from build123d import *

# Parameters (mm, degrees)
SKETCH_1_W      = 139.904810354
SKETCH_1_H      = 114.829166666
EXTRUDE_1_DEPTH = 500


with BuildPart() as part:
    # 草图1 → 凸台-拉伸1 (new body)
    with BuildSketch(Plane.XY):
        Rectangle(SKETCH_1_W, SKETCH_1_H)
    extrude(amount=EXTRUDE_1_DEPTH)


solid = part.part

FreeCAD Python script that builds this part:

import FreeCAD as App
import Part
import Sketcher

V = App.Vector
Q = App.Units.Quantity

doc = App.newDocument("Part")
params = doc.addObject("Spreadsheet::Sheet", "Params")
for row, (alias, value) in enumerate([
    ("pad1_length", "500 mm"),
], start=1):
    params.set(f"A{row}", alias)
    params.set(f"B{row}", "=" + value)
    params.setAlias(f"B{row}", alias)

body = doc.addObject("PartDesign::Body", "Body")

sketch1 = doc.addObject("Sketcher::SketchObject", "Sketch")
body.addObject(sketch1)
sketch1.AttachmentSupport = (doc.XY_Plane, [""])
sketch1.MapMode = "FlatFace"
sketch1.addGeometry([
    Part.LineSegment(V(-69.952405, 57.414583, 0), V(-69.952405, -57.414583, 0)),
    Part.LineSegment(V(-69.952405, -57.414583, 0), V(69.952405, -57.414583, 0)),
    Part.LineSegment(V(69.952405, -57.414583, 0), V(69.952405, 57.414583, 0)),
    Part.LineSegment(V(69.952405, 57.414583, 0), V(-69.952405, 57.414583, 0)),
], False)
sketch1.addConstraint([
    Sketcher.Constraint("Coincident", 0, 2, 1, 1),
    Sketcher.Constraint("Coincident", 1, 2, 2, 1),
    Sketcher.Constraint("Coincident", 2, 2, 3, 1),
    Sketcher.Constraint("Coincident", 3, 2, 0, 1),
    Sketcher.Constraint("Vertical", 0),
    Sketcher.Constraint("Horizontal", 1),
    Sketcher.Constraint("Vertical", 2),
    Sketcher.Constraint("Horizontal", 3),
    Sketcher.Constraint("Symmetric", 0, 2, 2, 2, -1, 1),
    Sketcher.Constraint("DistanceX", 1, 1, 1, 2, Q("139.90481 mm")),
    Sketcher.Constraint("DistanceY", 0, 2, 0, 1, Q("114.829167 mm")),
])
pad1 = doc.addObject("PartDesign::Pad", "Pad")
body.addObject(pad1)
pad1.Profile = sketch1
pad1.setExpression("Length", "Params.pad1_length")

doc.recompute()
